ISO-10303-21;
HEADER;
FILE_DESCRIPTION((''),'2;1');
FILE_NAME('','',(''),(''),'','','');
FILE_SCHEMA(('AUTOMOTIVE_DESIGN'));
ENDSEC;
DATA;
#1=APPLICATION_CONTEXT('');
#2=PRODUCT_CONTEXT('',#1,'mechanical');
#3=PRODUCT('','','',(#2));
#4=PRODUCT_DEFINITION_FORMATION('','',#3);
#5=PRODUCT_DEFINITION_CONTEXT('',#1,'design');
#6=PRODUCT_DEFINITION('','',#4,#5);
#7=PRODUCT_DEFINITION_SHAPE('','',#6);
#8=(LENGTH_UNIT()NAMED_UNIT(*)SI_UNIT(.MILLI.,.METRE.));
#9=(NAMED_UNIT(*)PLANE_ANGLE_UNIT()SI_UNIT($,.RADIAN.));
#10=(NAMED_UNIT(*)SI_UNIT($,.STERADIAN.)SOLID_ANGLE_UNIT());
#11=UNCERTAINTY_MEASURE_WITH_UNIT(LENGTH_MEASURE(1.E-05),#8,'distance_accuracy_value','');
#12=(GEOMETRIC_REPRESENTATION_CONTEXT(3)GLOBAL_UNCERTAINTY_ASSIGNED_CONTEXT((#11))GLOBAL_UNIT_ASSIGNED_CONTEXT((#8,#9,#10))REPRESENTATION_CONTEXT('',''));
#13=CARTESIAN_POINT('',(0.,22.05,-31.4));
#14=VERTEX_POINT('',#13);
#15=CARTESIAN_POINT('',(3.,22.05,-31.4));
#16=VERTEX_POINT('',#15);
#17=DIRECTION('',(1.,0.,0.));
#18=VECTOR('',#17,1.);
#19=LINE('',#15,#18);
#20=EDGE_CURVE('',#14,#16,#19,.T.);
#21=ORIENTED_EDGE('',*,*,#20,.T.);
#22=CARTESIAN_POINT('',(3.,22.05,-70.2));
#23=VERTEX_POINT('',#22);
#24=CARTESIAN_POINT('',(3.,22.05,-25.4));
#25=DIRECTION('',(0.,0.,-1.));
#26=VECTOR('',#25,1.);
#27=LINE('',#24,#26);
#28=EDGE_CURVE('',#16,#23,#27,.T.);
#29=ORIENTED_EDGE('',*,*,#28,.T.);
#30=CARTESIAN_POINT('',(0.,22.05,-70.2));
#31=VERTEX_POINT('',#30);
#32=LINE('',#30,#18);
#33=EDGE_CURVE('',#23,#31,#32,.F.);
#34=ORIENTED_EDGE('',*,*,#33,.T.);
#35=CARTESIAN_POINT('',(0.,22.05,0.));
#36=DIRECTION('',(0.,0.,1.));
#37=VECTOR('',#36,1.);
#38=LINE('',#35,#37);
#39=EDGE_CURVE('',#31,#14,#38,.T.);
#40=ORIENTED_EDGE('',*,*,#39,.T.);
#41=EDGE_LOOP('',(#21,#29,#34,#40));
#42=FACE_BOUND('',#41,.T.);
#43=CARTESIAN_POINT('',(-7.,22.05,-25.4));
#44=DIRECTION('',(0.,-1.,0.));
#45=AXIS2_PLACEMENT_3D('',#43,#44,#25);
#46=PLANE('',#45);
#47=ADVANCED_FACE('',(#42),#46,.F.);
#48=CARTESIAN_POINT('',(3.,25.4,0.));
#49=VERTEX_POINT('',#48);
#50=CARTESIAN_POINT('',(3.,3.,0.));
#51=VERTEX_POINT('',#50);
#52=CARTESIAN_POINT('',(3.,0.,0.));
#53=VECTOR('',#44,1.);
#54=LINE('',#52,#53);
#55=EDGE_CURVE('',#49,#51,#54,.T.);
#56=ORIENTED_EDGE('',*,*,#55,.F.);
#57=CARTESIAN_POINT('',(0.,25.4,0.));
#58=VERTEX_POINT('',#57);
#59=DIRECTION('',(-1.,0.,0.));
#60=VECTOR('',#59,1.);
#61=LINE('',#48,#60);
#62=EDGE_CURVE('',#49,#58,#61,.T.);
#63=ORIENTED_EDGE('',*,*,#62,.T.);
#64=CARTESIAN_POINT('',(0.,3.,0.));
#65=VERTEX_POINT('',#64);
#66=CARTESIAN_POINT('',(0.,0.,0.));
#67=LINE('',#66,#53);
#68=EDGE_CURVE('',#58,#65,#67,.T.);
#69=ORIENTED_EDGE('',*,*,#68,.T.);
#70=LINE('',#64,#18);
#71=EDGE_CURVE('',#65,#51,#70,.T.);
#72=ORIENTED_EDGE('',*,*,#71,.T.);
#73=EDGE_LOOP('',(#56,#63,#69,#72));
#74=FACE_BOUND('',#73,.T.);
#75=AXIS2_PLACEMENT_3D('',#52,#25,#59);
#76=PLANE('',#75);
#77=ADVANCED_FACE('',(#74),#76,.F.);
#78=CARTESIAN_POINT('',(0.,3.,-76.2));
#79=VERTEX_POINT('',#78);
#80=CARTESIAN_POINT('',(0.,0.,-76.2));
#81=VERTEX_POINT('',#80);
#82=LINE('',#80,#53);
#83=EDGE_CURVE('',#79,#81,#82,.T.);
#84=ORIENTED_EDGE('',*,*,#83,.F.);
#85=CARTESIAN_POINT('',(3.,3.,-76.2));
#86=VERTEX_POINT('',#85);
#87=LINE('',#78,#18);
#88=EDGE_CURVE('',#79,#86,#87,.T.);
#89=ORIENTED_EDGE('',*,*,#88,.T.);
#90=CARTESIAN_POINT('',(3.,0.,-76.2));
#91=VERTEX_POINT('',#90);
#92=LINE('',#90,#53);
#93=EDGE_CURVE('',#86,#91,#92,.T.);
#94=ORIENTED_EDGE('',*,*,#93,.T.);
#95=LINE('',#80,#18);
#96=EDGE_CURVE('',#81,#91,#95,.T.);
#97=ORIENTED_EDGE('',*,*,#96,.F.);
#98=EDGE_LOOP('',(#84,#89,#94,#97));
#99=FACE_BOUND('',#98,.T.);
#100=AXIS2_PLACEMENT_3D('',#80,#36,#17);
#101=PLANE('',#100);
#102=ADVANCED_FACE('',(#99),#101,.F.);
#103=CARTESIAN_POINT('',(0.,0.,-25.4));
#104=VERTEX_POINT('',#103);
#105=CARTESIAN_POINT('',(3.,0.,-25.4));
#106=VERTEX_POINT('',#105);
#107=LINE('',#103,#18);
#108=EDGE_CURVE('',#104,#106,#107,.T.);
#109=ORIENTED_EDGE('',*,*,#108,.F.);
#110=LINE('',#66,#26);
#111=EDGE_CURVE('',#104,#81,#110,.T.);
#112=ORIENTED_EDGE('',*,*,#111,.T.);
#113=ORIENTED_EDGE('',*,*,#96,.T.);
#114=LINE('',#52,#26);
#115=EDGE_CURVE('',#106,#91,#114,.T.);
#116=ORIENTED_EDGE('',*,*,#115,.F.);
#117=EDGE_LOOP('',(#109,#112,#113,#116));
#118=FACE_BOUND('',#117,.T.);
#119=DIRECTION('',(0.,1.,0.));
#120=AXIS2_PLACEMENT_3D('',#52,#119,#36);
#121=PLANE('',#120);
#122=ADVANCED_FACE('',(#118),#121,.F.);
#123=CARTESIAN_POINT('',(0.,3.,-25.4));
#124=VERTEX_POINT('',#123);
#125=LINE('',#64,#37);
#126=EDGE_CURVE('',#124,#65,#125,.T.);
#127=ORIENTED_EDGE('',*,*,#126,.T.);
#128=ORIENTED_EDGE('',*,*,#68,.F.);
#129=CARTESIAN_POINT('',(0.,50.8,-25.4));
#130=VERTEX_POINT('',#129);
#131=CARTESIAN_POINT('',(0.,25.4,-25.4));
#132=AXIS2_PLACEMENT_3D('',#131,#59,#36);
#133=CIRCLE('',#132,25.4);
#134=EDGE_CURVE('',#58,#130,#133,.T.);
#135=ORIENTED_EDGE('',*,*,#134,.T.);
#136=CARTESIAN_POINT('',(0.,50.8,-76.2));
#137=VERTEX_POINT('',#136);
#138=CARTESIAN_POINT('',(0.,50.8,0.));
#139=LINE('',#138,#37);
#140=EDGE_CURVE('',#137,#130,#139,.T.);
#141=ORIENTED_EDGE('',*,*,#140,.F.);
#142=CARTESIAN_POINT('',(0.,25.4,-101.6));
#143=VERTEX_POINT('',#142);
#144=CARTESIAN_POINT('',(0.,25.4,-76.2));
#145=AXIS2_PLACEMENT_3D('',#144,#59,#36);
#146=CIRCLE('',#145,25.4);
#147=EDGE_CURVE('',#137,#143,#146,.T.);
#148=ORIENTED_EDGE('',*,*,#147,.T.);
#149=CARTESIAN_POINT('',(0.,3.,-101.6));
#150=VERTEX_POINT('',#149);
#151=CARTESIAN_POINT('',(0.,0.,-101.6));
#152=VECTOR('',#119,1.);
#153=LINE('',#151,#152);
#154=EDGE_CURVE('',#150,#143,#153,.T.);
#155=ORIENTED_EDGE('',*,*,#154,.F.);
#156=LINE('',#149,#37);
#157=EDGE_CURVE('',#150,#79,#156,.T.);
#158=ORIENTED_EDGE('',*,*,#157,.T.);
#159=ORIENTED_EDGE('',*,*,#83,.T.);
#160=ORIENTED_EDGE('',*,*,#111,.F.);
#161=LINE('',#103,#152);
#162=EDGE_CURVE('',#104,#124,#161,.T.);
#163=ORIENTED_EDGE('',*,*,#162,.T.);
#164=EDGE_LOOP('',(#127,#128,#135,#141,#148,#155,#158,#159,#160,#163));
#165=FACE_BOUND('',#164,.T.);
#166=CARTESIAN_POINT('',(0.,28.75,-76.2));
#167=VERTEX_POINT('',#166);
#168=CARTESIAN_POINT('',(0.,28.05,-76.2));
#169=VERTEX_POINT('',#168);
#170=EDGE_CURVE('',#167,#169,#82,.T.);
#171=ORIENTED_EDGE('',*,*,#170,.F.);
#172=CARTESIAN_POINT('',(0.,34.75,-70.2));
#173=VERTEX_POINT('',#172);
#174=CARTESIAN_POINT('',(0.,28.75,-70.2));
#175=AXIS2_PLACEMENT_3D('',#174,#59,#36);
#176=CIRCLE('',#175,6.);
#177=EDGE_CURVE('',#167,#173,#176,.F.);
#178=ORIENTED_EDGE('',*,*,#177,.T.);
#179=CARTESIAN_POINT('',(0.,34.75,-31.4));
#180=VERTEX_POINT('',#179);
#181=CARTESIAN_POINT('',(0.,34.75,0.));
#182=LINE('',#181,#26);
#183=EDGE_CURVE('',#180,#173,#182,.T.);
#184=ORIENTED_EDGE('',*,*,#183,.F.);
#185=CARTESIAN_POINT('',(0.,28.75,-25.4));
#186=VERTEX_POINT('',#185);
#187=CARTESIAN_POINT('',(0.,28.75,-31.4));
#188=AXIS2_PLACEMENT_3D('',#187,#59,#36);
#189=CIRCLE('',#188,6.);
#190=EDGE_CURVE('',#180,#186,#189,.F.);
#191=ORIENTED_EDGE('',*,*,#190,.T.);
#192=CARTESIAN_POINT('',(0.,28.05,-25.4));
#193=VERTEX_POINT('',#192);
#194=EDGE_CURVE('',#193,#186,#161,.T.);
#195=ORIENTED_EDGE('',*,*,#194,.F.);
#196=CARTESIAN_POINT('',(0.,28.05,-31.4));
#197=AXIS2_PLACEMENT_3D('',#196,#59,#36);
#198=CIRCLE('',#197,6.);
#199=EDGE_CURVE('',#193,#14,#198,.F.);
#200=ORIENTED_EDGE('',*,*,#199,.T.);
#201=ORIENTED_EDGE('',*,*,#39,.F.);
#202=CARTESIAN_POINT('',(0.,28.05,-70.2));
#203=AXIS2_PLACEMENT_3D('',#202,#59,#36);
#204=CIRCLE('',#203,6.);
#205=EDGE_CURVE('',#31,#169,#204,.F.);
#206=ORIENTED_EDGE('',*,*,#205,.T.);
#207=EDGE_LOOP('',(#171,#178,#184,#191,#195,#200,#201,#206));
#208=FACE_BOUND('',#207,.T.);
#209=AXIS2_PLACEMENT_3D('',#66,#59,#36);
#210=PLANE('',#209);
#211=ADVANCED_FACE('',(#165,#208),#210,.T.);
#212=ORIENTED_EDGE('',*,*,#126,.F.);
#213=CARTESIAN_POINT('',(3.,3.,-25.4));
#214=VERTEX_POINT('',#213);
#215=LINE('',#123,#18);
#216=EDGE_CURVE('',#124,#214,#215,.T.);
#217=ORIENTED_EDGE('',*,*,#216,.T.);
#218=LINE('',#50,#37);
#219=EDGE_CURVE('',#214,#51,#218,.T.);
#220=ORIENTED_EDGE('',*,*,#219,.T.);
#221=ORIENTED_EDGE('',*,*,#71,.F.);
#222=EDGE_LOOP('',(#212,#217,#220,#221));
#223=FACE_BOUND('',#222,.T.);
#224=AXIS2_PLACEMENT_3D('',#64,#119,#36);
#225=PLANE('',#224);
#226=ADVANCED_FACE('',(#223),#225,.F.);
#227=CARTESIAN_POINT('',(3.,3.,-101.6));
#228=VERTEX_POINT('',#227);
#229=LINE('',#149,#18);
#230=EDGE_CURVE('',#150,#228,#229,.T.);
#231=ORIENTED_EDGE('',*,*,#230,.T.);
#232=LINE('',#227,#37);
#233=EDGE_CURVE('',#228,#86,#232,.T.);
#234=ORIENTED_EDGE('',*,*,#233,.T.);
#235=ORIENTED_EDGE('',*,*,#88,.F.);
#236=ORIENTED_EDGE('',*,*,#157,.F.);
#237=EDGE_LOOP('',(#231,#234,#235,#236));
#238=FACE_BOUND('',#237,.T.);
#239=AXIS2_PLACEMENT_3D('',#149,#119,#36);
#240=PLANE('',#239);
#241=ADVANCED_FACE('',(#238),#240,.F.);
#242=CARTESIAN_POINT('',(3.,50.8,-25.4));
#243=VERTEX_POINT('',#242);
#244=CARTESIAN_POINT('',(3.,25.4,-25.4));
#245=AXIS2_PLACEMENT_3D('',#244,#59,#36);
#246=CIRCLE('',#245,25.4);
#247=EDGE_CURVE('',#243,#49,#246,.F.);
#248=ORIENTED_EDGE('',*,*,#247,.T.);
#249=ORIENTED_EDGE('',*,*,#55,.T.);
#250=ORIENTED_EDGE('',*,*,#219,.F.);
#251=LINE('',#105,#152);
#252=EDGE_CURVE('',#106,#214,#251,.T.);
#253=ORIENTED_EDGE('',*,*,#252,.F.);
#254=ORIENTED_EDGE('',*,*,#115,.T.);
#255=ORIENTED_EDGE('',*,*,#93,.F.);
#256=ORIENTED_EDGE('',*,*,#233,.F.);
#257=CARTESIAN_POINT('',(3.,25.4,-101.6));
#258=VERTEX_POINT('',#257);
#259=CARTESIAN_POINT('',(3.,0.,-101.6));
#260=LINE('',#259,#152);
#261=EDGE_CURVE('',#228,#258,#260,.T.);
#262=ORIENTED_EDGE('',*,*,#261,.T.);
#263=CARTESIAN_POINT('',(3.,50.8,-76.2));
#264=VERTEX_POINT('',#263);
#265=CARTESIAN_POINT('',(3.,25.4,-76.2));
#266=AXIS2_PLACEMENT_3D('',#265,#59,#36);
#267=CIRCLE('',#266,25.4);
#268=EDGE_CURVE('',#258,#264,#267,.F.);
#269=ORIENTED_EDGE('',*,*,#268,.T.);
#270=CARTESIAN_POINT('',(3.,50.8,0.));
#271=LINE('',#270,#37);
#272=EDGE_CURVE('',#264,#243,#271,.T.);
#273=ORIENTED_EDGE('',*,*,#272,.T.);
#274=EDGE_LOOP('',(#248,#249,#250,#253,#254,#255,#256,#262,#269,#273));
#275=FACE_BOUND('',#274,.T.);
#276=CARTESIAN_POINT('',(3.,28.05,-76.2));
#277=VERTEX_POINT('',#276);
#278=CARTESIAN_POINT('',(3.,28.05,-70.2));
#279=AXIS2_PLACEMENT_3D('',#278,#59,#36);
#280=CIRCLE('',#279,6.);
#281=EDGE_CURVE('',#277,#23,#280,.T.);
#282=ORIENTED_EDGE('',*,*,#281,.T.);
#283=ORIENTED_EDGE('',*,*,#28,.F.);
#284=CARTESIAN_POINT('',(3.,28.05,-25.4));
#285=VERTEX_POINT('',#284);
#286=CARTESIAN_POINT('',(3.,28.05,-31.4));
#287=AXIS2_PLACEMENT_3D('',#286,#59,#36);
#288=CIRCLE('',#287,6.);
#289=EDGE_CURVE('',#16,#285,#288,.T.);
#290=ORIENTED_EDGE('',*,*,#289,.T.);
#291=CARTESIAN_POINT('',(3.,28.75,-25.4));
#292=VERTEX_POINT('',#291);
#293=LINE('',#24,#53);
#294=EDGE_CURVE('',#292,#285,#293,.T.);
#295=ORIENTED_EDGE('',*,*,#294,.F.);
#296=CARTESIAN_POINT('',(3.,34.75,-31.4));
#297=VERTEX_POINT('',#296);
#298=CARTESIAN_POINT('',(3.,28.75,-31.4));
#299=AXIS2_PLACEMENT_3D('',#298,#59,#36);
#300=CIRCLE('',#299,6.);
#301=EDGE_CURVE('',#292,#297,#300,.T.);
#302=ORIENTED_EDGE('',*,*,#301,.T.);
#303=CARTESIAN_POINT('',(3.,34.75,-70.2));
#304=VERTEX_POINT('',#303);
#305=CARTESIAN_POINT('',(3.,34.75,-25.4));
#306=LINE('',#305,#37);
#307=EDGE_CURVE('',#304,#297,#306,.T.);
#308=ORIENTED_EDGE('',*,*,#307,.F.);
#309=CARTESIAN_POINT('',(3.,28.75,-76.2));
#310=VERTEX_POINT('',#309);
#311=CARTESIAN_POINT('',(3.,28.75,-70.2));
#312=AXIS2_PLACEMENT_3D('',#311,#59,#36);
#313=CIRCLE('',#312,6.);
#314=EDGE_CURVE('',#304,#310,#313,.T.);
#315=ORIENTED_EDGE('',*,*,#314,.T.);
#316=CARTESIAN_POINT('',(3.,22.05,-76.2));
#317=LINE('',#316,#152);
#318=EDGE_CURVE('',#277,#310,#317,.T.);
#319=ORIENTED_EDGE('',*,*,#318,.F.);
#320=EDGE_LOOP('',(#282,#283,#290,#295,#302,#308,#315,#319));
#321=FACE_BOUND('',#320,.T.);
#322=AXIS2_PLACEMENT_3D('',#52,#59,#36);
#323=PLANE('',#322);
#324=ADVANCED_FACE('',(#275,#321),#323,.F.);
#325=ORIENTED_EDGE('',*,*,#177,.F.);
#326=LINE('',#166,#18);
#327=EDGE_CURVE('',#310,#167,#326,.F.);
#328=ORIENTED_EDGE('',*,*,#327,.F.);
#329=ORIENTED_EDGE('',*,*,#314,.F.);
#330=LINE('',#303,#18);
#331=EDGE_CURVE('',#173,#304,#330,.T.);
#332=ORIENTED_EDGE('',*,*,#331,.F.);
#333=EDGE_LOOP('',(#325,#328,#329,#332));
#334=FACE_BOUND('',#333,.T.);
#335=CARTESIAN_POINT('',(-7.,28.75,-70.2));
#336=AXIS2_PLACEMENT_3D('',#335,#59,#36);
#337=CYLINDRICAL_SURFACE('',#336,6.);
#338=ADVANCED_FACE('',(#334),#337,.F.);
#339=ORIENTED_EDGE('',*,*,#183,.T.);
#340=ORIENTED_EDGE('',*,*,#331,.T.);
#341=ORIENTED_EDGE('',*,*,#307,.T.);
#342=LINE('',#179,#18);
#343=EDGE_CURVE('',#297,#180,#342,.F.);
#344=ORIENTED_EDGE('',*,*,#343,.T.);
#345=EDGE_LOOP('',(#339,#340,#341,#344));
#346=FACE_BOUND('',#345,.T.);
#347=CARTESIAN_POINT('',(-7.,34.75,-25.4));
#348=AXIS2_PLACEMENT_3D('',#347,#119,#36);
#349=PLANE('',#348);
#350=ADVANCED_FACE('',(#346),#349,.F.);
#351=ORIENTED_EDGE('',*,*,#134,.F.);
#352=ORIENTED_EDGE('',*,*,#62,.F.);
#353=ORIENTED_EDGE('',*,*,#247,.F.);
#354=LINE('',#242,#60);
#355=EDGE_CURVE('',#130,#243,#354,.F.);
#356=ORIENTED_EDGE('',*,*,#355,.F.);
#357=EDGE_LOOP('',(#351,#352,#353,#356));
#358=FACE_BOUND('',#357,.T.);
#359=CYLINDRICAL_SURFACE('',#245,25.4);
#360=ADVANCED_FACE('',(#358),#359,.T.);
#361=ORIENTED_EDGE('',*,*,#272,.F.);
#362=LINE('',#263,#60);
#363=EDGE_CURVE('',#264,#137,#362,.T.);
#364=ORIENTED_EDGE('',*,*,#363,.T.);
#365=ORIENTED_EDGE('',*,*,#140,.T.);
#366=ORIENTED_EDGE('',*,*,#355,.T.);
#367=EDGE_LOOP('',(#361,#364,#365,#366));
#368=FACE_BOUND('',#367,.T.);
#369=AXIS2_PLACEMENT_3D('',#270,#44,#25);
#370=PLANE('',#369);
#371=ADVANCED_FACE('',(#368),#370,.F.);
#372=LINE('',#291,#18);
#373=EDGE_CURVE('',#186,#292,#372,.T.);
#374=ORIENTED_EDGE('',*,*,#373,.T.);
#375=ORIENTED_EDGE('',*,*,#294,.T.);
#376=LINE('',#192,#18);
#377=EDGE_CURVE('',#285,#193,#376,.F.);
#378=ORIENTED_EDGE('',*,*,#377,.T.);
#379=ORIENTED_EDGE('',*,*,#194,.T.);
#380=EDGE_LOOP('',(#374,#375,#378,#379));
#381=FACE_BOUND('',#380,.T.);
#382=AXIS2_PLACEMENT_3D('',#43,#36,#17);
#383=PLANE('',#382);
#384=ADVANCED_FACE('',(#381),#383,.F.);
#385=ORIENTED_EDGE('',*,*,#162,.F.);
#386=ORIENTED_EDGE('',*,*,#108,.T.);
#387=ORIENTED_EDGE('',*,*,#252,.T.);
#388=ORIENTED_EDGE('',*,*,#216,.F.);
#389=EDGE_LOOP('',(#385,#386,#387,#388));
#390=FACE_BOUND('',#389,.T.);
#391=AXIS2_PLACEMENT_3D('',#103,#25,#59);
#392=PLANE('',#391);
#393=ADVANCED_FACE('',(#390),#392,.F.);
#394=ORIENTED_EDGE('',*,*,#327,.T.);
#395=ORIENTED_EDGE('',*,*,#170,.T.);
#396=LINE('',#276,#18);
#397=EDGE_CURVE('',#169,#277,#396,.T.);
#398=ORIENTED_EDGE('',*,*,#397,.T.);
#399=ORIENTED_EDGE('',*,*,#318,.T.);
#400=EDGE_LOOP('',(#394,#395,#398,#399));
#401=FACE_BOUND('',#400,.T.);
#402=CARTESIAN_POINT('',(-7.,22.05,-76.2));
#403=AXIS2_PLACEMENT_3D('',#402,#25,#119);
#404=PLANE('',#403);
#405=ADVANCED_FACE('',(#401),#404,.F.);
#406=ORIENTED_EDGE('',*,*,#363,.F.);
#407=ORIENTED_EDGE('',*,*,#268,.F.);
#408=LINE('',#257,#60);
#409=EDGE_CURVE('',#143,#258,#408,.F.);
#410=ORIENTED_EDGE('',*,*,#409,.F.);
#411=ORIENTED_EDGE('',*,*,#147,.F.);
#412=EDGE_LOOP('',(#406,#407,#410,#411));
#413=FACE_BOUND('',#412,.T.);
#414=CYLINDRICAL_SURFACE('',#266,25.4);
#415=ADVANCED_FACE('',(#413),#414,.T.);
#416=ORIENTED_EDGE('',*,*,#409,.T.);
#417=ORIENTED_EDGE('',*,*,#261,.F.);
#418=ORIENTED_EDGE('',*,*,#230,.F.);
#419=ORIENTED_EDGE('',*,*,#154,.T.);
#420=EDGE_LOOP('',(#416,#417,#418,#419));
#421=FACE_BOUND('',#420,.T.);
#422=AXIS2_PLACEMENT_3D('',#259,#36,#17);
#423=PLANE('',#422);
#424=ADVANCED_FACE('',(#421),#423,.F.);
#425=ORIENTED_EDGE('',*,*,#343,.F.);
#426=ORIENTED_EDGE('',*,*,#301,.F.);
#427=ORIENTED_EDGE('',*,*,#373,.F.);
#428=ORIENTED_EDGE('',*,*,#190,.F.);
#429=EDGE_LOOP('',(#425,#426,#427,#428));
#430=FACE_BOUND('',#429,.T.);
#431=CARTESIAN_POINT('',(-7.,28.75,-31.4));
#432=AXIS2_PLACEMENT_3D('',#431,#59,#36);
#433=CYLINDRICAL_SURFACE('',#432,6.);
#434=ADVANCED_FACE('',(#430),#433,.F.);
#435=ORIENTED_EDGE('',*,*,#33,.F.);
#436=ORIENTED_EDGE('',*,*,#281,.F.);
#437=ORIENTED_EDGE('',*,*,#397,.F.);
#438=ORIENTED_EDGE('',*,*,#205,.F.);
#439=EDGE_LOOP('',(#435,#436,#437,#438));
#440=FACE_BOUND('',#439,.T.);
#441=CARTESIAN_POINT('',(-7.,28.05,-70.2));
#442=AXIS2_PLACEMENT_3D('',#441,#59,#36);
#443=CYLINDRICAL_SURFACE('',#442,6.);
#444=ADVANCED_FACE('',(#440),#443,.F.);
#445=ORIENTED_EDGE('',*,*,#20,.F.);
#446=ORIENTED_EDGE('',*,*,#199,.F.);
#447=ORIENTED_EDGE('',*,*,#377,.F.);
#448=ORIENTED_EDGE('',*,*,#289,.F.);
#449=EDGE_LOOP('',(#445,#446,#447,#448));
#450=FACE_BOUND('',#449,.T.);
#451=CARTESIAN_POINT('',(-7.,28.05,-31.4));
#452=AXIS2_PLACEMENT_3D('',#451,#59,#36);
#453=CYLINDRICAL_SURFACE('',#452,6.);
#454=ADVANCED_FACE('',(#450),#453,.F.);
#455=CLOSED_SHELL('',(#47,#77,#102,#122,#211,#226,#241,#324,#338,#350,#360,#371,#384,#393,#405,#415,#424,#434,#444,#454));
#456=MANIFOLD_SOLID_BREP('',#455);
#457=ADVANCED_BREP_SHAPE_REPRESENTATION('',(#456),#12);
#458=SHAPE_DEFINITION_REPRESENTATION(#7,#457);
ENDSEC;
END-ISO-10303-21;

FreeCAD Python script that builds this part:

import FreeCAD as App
import Part
import Sketcher

V = App.Vector
Q = App.Units.Quantity


def edges_at(feature, points):
    """Names of the edges that pass closest to the given points."""
    edges = feature.Shape.Edges
    near = lambda p: min(range(len(edges)), key=lambda i: edges[i].distToShape(Part.Vertex(*p))[0])
    return sorted({f"Edge{near(p) + 1}" for p in points})


def add_polygon(sketch, points):
    """Adds a closed chain of lines whose ends are joined by coincident constraints."""
    first, n = sketch.GeometryCount, len(points)
    for a, b in zip(points, points[1:] + points[:1]):
        sketch.addGeometry(Part.LineSegment(App.Vector(*a, 0), App.Vector(*b, 0)), False)
    for i in range(n):
        sketch.addConstraint(Sketcher.Constraint("Coincident", first + i, 2, first + (i + 1) % n, 1))

doc = App.newDocument("Part")
body = doc.addObject("PartDesign::Body", "Body")

# Sketch on YZ plane
sketch1 = doc.addObject("Sketcher::SketchObject", "Sketch")
body.addObject(sketch1)
sketch1.AttachmentSupport = (doc.YZ_Plane, [""])
sketch1.MapMode = "FlatFace"
add_polygon(sketch1, [(51, 0), (0, 0), (0, -102), (51, -102)])  # lines 0-3
sketch1.addConstraint(Sketcher.Constraint("Horizontal", 0))
sketch1.addConstraint(Sketcher.Constraint("Vertical", 1))
sketch1.addConstraint(Sketcher.Constraint("Horizontal", 2))
sketch1.addConstraint(Sketcher.Constraint("Vertical", 3))
sketch1.addConstraint(Sketcher.Constraint("Coincident", 0, 2, -1, 1))
sketch1.addConstraint(Sketcher.Constraint("DistanceX", 0, 2, 0, 1, Q("2 in")))
sketch1.addConstraint(Sketcher.Constraint("DistanceY", 1, 2, 1, 1, Q("4 in")))
pad1 = doc.addObject("PartDesign::Pad", "Pad")
body.addObject(pad1)
pad1.Profile = sketch1
pad1.Length = 3
doc.recompute()

fillet = doc.addObject("PartDesign::Fillet", "Fillet")
body.addObject(fillet)
fillet.Base = (pad1, edges_at(pad1, [(1.5, 50.8, 0), (1.5, 50.8, -101.6)]))
fillet.Radius = Q("1 in")

# Sketch on YZ plane
sketch2 = doc.addObject("Sketcher::SketchObject", "Sketch001")
body.addObject(sketch2)
sketch2.AttachmentSupport = (doc.YZ_Plane, [""])
sketch2.MapMode = "FlatFace"
sketch2.AttachmentOffset = App.Placement(V(0, 0, 3), App.Rotation())
add_polygon(sketch2, [(3, 0), (0, 0), (0, -25.4), (3, -25.4)])  # lines 0-3
add_polygon(sketch2, [(3, -76.2), (0, -76.2), (0, -101.6), (3, -101.6)])  # lines 4-7
sketch2.addConstraint(Sketcher.Constraint("Horizontal", 0))
sketch2.addConstraint(Sketcher.Constraint("Vertical", 1))
sketch2.addConstraint(Sketcher.Constraint("Horizontal", 2))
sketch2.addConstraint(Sketcher.Constraint("Vertical", 3))
sketch2.addConstraint(Sketcher.Constraint("Horizontal", 4))
sketch2.addConstraint(Sketcher.Constraint("Vertical", 5))
sketch2.addConstraint(Sketcher.Constraint("Horizontal", 6))
sketch2.addConstraint(Sketcher.Constraint("Vertical", 7))
sketch2.addConstraint(Sketcher.Constraint("Coincident", 0, 2, -1, 1))
sketch2.addConstraint(Sketcher.Constraint("PointOnObject", 4, 2, -2))
sketch2.addConstraint(Sketcher.Constraint("Vertical", 3, 2, 6, 2))
sketch2.addConstraint(Sketcher.Constraint("Equal", 3, 5))
sketch2.addConstraint(Sketcher.Constraint("DistanceY", 1, 2, 1, 1, Q("1 in")))
sketch2.addConstraint(Sketcher.Constraint("DistanceY", 4, 2, -1, 1, Q("3 in")))
sketch2.addConstraint(Sketcher.Constraint("DistanceX", 0, 2, 0, 1, 3.0))
pocket1 = doc.addObject("PartDesign::Pocket", "Pocket")
body.addObject(pocket1)
pocket1.Profile = sketch2
pocket1.Length = 3

# Sketch on YZ plane
sketch3 = doc.addObject("Sketcher::SketchObject", "Sketch002")
body.addObject(sketch3)
sketch3.AttachmentSupport = (doc.YZ_Plane, [""])
sketch3.MapMode = "FlatFace"
sketch3.AttachmentOffset = App.Placement(V(0, 0, 3), App.Rotation())
add_polygon(sketch3, [(35, -25), (22, -25), (22, -76), (35, -76)])  # lines 0-3
sketch3.addConstraint(Sketcher.Constraint("Horizontal", 0))
sketch3.addConstraint(Sketcher.Constraint("Vertical", 1))
sketch3.addConstraint(Sketcher.Constraint("Horizontal", 2))
sketch3.addConstraint(Sketcher.Constraint("Vertical", 3))
sketch3.addConstraint(Sketcher.Constraint("DistanceY", 1, 2, 1, 1, Q("2 in")))
sketch3.addConstraint(Sketcher.Constraint("DistanceX", 0, 2, 0, 1, Q("0.5 in")))
sketch3.addConstraint(Sketcher.Constraint("DistanceY", 0, 2, -1, 1, Q("1 in")))
sketch3.addConstraint(Sketcher.Constraint("DistanceX", -1, 1, 0, 2, 22.05))
pocket2 = doc.addObject("PartDesign::Pocket", "Pocket001")
body.addObject(pocket2)
pocket2.Profile = sketch3
pocket2.Length = 10
doc.recompute()

fillet2 = doc.addObject("PartDesign::Fillet", "Fillet001")
body.addObject(fillet2)
fillet2.Base = (pocket2, edges_at(pocket2, [
    (1.5, 22.05, -25.4),
    (1.5, 34.75, -25.4),
    (1.5, 34.75, -76.2),
    (1.5, 22.05, -76.2),
]))
fillet2.Radius = 6

doc.recompute()
